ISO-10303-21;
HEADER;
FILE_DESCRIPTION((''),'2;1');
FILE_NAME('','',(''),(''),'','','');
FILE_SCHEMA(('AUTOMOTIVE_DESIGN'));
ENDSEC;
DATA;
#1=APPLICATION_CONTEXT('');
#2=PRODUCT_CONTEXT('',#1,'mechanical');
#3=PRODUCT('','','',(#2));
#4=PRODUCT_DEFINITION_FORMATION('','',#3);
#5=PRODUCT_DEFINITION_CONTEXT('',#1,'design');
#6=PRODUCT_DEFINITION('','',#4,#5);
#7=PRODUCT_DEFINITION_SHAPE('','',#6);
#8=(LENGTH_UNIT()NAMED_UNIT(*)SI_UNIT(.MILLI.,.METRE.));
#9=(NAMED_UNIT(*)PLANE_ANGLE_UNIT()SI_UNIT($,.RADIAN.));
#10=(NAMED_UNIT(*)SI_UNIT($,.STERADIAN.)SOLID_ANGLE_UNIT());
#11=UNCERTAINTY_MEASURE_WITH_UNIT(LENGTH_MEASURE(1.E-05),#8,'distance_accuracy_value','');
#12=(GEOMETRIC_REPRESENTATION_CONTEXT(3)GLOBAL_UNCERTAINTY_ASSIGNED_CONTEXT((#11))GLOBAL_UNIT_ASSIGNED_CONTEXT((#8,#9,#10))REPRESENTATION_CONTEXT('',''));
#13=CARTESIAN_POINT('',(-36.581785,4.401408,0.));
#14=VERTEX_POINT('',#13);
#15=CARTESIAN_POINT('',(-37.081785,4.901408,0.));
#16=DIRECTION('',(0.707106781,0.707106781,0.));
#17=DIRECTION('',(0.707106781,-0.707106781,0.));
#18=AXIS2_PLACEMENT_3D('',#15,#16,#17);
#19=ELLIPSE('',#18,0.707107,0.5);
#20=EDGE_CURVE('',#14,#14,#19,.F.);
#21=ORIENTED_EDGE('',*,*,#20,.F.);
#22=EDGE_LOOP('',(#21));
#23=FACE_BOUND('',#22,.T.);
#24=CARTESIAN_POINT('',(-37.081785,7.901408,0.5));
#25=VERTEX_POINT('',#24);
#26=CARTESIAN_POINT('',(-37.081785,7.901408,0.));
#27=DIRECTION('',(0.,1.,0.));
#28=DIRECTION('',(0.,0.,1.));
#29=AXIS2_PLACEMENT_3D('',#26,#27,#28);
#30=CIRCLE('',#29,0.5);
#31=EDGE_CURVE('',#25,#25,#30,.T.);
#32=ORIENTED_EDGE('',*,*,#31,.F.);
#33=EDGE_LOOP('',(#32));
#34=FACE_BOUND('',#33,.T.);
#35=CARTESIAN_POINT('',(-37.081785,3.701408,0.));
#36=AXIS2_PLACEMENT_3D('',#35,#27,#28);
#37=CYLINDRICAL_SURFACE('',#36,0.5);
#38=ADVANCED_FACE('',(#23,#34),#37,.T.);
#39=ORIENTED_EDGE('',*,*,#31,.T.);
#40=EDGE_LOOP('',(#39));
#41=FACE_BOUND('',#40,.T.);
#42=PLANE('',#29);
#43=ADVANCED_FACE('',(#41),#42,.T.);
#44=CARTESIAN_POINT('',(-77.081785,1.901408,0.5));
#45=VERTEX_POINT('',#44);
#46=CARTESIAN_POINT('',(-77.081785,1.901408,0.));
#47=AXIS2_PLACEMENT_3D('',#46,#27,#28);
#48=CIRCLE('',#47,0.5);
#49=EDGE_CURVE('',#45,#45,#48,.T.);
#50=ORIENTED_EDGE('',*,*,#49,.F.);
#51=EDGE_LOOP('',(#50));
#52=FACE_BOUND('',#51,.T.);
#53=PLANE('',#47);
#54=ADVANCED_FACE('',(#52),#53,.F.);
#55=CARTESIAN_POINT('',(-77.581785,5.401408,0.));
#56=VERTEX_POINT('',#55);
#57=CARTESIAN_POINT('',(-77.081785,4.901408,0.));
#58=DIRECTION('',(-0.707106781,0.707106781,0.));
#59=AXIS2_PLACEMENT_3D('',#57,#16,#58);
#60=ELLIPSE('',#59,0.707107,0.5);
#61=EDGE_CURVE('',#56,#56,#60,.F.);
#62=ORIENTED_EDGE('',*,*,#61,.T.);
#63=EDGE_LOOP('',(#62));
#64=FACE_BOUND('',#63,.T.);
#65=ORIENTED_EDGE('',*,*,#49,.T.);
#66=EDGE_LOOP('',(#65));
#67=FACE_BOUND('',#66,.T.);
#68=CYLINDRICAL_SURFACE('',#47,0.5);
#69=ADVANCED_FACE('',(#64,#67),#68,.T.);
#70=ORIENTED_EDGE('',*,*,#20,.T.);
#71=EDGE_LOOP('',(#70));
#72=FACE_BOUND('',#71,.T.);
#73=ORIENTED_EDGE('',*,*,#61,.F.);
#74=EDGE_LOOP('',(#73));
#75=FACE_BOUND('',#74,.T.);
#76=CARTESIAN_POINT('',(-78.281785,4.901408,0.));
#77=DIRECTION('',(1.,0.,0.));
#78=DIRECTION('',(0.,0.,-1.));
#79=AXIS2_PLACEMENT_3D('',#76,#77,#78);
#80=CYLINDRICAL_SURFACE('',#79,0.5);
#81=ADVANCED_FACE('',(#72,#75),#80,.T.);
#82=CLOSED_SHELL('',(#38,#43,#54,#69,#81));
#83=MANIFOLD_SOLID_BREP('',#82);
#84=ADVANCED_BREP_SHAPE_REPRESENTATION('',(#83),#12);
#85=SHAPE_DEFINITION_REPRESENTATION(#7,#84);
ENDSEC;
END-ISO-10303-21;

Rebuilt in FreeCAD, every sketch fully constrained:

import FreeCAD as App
import Part
import Sketcher
Q = App.Units.Quantity

doc = App.newDocument("Part")
body = doc.addObject("PartDesign::Body", "Body")

# Sketch on XZ plane
sketch1 = doc.addObject("Sketcher::SketchObject", "Sketch")
body.addObject(sketch1)
sketch1.AttachmentSupport = (doc.XZ_Plane, [""])
sketch1.MapMode = "FlatFace"
sketch1.AttachmentOffset = App.Placement(App.Vector(0, 0, -7.901408), App.Rotation())
sketch1.addGeometry(Part.Circle(App.Vector(-37.1, 0, 0), App.Vector(0, 0, 1), 0.5), False)
sketch1.addConstraint(Sketcher.Constraint("PointOnObject", 0, 3, -1))
sketch1.addConstraint(Sketcher.Constraint("Diameter", 0, Q("1 mm")))
sketch1.addConstraint(Sketcher.Constraint("DistanceX", 0, 3, -1, 1, Q("37.081785 mm")))

# Sketch on XY plane
sketch2 = doc.addObject("Sketcher::SketchObject", "Sketch001")
body.addObject(sketch2)
sketch2.AttachmentSupport = (doc.XY_Plane, [""])
sketch2.MapMode = "FlatFace"
sketch2.addGeometry(Part.LineSegment(App.Vector(-77.1, 1.9, 0), App.Vector(-77.1, 4.9, 0)), False)
sketch2.addGeometry(Part.LineSegment(App.Vector(-77.1, 4.9, 0), App.Vector(-37.1, 4.9, 0)), False)
sketch2.addGeometry(Part.LineSegment(App.Vector(-37.1, 4.9, 0), App.Vector(-37.1, 7.9, 0)), False)
sketch2.addConstraint(Sketcher.Constraint("Coincident", 0, 2, 1, 1))
sketch2.addConstraint(Sketcher.Constraint("Coincident", 1, 2, 2, 1))
sketch2.addConstraint(Sketcher.Constraint("Vertical", 0))
sketch2.addConstraint(Sketcher.Constraint("Horizontal", 1))
sketch2.addConstraint(Sketcher.Constraint("Vertical", 2))
sketch2.addConstraint(Sketcher.Constraint("Equal", 0, 2))
sketch2.addConstraint(Sketcher.Constraint("DistanceX", 1, 1, 1, 2, Q("40 mm")))
sketch2.addConstraint(Sketcher.Constraint("DistanceY", 0, 1, 0, 2, Q("3 mm")))
sketch2.addConstraint(Sketcher.Constraint("DistanceY", -1, 1, 0, 1, Q("1.901408 mm")))
sketch2.addConstraint(Sketcher.Constraint("DistanceX", 0, 1, -1, 1, Q("77.081785 mm")))
doc.recompute()

additivepipe = doc.addObject("PartDesign::AdditivePipe", "AdditivePipe")
body.addObject(additivepipe)
additivepipe.Profile = sketch1
additivepipe.Spine = (sketch2, ["Edge1", "Edge2", "Edge3"])
additivepipe.Transition = "Right corner"

doc.recompute()
